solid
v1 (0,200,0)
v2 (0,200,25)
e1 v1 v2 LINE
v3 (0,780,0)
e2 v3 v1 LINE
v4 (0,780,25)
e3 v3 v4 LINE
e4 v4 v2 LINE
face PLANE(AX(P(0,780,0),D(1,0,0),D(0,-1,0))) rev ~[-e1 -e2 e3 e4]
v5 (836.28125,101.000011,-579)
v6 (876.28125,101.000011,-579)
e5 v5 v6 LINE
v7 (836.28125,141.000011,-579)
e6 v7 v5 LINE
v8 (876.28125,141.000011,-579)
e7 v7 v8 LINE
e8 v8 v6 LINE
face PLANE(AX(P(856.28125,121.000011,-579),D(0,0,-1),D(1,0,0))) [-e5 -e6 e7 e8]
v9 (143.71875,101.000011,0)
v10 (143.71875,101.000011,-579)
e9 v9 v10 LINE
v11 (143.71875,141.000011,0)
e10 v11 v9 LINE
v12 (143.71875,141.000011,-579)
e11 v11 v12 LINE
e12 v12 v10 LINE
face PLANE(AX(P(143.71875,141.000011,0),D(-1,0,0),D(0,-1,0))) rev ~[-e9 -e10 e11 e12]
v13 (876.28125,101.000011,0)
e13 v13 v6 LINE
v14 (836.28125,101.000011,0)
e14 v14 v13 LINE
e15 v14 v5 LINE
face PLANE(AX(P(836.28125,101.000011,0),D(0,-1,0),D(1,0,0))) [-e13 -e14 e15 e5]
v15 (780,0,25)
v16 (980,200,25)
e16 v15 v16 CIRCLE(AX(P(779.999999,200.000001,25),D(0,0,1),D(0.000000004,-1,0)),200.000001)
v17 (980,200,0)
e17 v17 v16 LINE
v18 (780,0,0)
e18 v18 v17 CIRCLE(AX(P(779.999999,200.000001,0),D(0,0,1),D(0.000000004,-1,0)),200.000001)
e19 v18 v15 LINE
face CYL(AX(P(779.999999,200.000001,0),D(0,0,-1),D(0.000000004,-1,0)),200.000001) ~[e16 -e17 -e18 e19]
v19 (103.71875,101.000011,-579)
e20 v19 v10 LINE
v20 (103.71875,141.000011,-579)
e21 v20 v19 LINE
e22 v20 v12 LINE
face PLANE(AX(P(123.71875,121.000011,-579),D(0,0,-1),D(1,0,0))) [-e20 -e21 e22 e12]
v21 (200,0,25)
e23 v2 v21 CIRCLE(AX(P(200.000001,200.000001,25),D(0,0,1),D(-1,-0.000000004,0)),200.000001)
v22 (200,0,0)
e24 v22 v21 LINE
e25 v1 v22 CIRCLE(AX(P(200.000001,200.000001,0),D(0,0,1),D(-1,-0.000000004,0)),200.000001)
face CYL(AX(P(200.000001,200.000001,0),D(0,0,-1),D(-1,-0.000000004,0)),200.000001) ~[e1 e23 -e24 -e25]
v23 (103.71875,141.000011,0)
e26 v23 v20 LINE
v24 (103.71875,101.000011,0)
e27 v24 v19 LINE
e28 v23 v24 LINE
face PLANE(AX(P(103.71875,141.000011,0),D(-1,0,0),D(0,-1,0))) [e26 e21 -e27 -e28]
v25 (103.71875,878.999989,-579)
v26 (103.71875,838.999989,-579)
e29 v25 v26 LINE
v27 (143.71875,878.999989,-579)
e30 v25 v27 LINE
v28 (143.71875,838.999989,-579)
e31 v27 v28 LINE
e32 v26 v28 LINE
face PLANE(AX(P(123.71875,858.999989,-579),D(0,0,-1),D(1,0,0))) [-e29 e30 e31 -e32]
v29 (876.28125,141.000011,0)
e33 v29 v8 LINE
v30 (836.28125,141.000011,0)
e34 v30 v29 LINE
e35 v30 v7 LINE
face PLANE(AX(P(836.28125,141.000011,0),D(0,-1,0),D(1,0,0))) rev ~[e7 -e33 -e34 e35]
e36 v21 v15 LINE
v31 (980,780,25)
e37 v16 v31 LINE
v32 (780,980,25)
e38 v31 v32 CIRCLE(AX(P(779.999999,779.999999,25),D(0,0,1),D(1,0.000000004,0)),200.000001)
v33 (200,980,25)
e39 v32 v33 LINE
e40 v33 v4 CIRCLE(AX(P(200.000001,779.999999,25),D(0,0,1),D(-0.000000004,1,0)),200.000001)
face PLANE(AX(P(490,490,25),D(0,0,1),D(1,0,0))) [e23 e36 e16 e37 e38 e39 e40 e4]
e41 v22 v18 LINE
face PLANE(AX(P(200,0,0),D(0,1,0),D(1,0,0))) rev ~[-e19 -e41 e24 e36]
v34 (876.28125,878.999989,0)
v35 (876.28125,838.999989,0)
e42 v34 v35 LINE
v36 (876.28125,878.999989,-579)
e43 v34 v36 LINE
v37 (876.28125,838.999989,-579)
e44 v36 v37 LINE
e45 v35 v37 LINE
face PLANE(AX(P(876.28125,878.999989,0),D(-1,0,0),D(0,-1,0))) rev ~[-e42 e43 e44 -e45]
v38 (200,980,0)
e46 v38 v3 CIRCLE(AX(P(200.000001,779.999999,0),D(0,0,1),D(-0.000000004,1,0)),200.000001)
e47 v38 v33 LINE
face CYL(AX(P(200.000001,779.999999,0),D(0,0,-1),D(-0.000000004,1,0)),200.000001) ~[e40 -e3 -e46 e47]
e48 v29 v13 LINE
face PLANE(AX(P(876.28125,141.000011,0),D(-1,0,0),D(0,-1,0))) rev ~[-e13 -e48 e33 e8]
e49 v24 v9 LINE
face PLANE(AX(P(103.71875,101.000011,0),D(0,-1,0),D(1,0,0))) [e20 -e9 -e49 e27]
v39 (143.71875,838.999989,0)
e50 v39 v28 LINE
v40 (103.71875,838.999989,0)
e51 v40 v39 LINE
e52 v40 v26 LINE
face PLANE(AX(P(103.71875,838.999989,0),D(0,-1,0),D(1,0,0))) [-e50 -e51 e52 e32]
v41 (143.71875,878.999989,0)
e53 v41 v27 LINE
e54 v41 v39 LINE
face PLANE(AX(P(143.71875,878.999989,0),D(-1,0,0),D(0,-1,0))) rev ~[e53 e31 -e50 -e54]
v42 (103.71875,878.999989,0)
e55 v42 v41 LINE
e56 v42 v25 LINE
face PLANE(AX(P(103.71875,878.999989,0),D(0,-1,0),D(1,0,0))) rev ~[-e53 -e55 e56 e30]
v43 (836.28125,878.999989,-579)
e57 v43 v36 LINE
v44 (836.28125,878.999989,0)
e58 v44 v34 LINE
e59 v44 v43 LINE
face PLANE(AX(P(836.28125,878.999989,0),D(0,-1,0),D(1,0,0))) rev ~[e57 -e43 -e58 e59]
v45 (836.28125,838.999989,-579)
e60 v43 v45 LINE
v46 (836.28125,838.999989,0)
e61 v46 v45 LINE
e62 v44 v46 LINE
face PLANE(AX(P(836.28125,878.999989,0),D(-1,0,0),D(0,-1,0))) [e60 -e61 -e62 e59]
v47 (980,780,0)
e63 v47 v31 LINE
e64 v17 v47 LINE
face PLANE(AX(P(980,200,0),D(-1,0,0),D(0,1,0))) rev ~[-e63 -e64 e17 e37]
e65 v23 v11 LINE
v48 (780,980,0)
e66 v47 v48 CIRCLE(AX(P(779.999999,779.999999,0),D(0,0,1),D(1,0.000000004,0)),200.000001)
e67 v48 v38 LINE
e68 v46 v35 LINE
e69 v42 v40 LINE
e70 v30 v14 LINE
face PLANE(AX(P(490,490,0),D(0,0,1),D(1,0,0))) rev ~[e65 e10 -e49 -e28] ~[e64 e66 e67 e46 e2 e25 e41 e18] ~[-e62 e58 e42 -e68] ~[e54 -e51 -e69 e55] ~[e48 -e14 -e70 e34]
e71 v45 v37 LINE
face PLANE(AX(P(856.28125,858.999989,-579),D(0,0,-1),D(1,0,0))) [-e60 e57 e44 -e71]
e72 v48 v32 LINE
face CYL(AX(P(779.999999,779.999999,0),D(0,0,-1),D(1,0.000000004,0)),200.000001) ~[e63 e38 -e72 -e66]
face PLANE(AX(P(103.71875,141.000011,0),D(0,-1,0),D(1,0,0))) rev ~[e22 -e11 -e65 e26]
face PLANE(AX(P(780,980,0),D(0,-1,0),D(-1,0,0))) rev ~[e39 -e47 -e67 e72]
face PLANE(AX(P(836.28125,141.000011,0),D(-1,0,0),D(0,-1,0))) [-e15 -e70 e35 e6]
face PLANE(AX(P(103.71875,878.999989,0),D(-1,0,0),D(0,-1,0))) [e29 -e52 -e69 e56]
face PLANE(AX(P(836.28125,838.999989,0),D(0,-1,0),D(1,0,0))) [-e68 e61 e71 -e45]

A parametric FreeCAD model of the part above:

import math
import FreeCAD as App
import Part
import Sketcher
from FreeCAD import Vector
Q = App.Units.Quantity


def add_polygon(sketch, points):
    """Adds a closed chain of lines whose ends are joined by coincident constraints."""
    first, n = sketch.GeometryCount, len(points)
    for a, b in zip(points, points[1:] + points[:1]):
        sketch.addGeometry(Part.LineSegment(App.Vector(*a, 0), App.Vector(*b, 0)), False)
    for i in range(n):
        sketch.addConstraint(Sketcher.Constraint("Coincident", first + i, 2, first + (i + 1) % n, 1))

doc = App.newDocument("Part")
body = doc.addObject("PartDesign::Body", "Body")

sketch1 = body.newObject("Sketcher::SketchObject", "Sketch")
sketch1.AttachmentSupport = (doc.getObject("XY_Plane"), [""])
sketch1.MapMode = "FlatFace"
sketch1.addGeometry([
    Part.ArcOfCircle(Part.Circle(Vector(200.000001, 200.000001, 0), Vector(0, 0, 1), 200.000001), math.radians(-180), math.radians(-90)),
    Part.LineSegment(Vector(200, 0, 0), Vector(780, 0, 0)),
    Part.ArcOfCircle(Part.Circle(Vector(779.999999, 200.000001, 0), Vector(0, 0, 1), 200.000001), math.radians(-90), math.radians(0)),
    Part.LineSegment(Vector(980, 200, 0), Vector(980, 780, 0)),
    Part.ArcOfCircle(Part.Circle(Vector(779.999999, 779.999999, 0), Vector(0, 0, 1), 200.000001), math.radians(0), math.radians(90)),
    Part.LineSegment(Vector(780, 980, 0), Vector(200, 980, 0)),
    Part.ArcOfCircle(Part.Circle(Vector(200.000001, 779.999999, 0), Vector(0, 0, 1), 200.000001), math.radians(90), math.radians(180)),
    Part.LineSegment(Vector(0, 780, 0), Vector(0, 200, 0)),
], False)
sketch1.addConstraint([
    Sketcher.Constraint("Tangent", 0, 2, 1, 1),
    Sketcher.Constraint("Tangent", 1, 2, 2, 1),
    Sketcher.Constraint("Tangent", 2, 2, 3, 1),
    Sketcher.Constraint("Tangent", 3, 2, 4, 1),
    Sketcher.Constraint("Tangent", 4, 2, 5, 1),
    Sketcher.Constraint("Tangent", 5, 2, 6, 1),
    Sketcher.Constraint("Tangent", 6, 2, 7, 1),
    Sketcher.Constraint("Tangent", 7, 2, 0, 1),
    Sketcher.Constraint("Horizontal", 1),
    Sketcher.Constraint("Vertical", 3),
    Sketcher.Constraint("Horizontal", 5),
    Sketcher.Constraint("Vertical", 7),
    Sketcher.Constraint("Equal", 0, 2),
    Sketcher.Constraint("Equal", 2, 4),
    Sketcher.Constraint("Equal", 4, 6),
    Sketcher.Constraint("PointOnObject", 0, 2, -1),
    Sketcher.Constraint("PointOnObject", 6, 2, -2),
    Sketcher.Constraint("Equal", 5, 3),
    Sketcher.Constraint("Radius", 0, Q("200.000001 mm")),
    Sketcher.Constraint("DistanceX", 1, 1, 1, 2, Q("580 mm")),
])
pad1 = body.newObject("PartDesign::Pad", "Pad")
pad1.Profile = sketch1
pad1.Length = 25

sketch2 = body.newObject("Sketcher::SketchObject", "Sketch001")
sketch2.AttachmentSupport = (doc.getObject("XY_Plane"), [""])
sketch2.MapMode = "FlatFace"
add_polygon(sketch2, [(103.71875, 101.000011), (103.71875, 141.000011), (143.71875, 141.000011), (143.71875, 101.000011)])
add_polygon(sketch2, [(836.28125, 101.000011), (836.28125, 141.000011), (876.28125, 141.000011), (876.28125, 101.000011)])
add_polygon(sketch2, [(103.71875, 838.999989), (103.71875, 878.999989), (143.71875, 878.999989), (143.71875, 838.999989)])
add_polygon(sketch2, [(836.28125, 838.999989), (836.28125, 878.999989), (876.28125, 878.999989), (876.28125, 838.999989)])
sketch2.addConstraint([
    Sketcher.Constraint("Vertical", 0),
    Sketcher.Constraint("Horizontal", 1),
    Sketcher.Constraint("Vertical", 2),
    Sketcher.Constraint("Horizontal", 3),
    Sketcher.Constraint("Vertical", 4),
    Sketcher.Constraint("Horizontal", 5),
    Sketcher.Constraint("Vertical", 6),
    Sketcher.Constraint("Horizontal", 7),
    Sketcher.Constraint("Vertical", 8),
    Sketcher.Constraint("Horizontal", 9),
    Sketcher.Constraint("Vertical", 10),
    Sketcher.Constraint("Horizontal", 11),
    Sketcher.Constraint("Vertical", 12),
    Sketcher.Constraint("Horizontal", 13),
    Sketcher.Constraint("Vertical", 14),
    Sketcher.Constraint("Horizontal", 15),
    Sketcher.Constraint("Horizontal", 1, 2, 4, 2),
    Sketcher.Constraint("Horizontal", 3, 2, 6, 2),
    Sketcher.Constraint("Horizontal", 9, 2, 12, 2),
    Sketcher.Constraint("Horizontal", 11, 2, 14, 2),
    Sketcher.Constraint("Vertical", 3, 2, 8, 2),
    Sketcher.Constraint("Vertical", 2, 2, 9, 2),
    Sketcher.Constraint("Vertical", 7, 2, 12, 2),
    Sketcher.Constraint("Vertical", 6, 2, 13, 2),
    Sketcher.Constraint("Equal", 3, 5),
    Sketcher.Constraint("Equal", 15, 0),
    Sketcher.Constraint("Equal", 6, 8),
    Sketcher.Constraint("DistanceX", 1, 1, 1, 2, Q("40 mm")),
    Sketcher.Constraint("DistanceX", 1, 2, 4, 2, Q("692.5625 mm")),
    Sketcher.Constraint("DistanceX", -1, 1, 0, 2, Q("103.71875 mm")),
    Sketcher.Constraint("DistanceY", -1, 1, 0, 2, Q("141.000011 mm")),
    Sketcher.Constraint("DistanceY", -1, 1, 8, 2, Q("878.999989 mm")),
])
pad2 = body.newObject("PartDesign::Pad", "Pad001")
pad2.Profile = sketch2
pad2.Length = 579
pad2.Reversed = True

doc.recompute()
